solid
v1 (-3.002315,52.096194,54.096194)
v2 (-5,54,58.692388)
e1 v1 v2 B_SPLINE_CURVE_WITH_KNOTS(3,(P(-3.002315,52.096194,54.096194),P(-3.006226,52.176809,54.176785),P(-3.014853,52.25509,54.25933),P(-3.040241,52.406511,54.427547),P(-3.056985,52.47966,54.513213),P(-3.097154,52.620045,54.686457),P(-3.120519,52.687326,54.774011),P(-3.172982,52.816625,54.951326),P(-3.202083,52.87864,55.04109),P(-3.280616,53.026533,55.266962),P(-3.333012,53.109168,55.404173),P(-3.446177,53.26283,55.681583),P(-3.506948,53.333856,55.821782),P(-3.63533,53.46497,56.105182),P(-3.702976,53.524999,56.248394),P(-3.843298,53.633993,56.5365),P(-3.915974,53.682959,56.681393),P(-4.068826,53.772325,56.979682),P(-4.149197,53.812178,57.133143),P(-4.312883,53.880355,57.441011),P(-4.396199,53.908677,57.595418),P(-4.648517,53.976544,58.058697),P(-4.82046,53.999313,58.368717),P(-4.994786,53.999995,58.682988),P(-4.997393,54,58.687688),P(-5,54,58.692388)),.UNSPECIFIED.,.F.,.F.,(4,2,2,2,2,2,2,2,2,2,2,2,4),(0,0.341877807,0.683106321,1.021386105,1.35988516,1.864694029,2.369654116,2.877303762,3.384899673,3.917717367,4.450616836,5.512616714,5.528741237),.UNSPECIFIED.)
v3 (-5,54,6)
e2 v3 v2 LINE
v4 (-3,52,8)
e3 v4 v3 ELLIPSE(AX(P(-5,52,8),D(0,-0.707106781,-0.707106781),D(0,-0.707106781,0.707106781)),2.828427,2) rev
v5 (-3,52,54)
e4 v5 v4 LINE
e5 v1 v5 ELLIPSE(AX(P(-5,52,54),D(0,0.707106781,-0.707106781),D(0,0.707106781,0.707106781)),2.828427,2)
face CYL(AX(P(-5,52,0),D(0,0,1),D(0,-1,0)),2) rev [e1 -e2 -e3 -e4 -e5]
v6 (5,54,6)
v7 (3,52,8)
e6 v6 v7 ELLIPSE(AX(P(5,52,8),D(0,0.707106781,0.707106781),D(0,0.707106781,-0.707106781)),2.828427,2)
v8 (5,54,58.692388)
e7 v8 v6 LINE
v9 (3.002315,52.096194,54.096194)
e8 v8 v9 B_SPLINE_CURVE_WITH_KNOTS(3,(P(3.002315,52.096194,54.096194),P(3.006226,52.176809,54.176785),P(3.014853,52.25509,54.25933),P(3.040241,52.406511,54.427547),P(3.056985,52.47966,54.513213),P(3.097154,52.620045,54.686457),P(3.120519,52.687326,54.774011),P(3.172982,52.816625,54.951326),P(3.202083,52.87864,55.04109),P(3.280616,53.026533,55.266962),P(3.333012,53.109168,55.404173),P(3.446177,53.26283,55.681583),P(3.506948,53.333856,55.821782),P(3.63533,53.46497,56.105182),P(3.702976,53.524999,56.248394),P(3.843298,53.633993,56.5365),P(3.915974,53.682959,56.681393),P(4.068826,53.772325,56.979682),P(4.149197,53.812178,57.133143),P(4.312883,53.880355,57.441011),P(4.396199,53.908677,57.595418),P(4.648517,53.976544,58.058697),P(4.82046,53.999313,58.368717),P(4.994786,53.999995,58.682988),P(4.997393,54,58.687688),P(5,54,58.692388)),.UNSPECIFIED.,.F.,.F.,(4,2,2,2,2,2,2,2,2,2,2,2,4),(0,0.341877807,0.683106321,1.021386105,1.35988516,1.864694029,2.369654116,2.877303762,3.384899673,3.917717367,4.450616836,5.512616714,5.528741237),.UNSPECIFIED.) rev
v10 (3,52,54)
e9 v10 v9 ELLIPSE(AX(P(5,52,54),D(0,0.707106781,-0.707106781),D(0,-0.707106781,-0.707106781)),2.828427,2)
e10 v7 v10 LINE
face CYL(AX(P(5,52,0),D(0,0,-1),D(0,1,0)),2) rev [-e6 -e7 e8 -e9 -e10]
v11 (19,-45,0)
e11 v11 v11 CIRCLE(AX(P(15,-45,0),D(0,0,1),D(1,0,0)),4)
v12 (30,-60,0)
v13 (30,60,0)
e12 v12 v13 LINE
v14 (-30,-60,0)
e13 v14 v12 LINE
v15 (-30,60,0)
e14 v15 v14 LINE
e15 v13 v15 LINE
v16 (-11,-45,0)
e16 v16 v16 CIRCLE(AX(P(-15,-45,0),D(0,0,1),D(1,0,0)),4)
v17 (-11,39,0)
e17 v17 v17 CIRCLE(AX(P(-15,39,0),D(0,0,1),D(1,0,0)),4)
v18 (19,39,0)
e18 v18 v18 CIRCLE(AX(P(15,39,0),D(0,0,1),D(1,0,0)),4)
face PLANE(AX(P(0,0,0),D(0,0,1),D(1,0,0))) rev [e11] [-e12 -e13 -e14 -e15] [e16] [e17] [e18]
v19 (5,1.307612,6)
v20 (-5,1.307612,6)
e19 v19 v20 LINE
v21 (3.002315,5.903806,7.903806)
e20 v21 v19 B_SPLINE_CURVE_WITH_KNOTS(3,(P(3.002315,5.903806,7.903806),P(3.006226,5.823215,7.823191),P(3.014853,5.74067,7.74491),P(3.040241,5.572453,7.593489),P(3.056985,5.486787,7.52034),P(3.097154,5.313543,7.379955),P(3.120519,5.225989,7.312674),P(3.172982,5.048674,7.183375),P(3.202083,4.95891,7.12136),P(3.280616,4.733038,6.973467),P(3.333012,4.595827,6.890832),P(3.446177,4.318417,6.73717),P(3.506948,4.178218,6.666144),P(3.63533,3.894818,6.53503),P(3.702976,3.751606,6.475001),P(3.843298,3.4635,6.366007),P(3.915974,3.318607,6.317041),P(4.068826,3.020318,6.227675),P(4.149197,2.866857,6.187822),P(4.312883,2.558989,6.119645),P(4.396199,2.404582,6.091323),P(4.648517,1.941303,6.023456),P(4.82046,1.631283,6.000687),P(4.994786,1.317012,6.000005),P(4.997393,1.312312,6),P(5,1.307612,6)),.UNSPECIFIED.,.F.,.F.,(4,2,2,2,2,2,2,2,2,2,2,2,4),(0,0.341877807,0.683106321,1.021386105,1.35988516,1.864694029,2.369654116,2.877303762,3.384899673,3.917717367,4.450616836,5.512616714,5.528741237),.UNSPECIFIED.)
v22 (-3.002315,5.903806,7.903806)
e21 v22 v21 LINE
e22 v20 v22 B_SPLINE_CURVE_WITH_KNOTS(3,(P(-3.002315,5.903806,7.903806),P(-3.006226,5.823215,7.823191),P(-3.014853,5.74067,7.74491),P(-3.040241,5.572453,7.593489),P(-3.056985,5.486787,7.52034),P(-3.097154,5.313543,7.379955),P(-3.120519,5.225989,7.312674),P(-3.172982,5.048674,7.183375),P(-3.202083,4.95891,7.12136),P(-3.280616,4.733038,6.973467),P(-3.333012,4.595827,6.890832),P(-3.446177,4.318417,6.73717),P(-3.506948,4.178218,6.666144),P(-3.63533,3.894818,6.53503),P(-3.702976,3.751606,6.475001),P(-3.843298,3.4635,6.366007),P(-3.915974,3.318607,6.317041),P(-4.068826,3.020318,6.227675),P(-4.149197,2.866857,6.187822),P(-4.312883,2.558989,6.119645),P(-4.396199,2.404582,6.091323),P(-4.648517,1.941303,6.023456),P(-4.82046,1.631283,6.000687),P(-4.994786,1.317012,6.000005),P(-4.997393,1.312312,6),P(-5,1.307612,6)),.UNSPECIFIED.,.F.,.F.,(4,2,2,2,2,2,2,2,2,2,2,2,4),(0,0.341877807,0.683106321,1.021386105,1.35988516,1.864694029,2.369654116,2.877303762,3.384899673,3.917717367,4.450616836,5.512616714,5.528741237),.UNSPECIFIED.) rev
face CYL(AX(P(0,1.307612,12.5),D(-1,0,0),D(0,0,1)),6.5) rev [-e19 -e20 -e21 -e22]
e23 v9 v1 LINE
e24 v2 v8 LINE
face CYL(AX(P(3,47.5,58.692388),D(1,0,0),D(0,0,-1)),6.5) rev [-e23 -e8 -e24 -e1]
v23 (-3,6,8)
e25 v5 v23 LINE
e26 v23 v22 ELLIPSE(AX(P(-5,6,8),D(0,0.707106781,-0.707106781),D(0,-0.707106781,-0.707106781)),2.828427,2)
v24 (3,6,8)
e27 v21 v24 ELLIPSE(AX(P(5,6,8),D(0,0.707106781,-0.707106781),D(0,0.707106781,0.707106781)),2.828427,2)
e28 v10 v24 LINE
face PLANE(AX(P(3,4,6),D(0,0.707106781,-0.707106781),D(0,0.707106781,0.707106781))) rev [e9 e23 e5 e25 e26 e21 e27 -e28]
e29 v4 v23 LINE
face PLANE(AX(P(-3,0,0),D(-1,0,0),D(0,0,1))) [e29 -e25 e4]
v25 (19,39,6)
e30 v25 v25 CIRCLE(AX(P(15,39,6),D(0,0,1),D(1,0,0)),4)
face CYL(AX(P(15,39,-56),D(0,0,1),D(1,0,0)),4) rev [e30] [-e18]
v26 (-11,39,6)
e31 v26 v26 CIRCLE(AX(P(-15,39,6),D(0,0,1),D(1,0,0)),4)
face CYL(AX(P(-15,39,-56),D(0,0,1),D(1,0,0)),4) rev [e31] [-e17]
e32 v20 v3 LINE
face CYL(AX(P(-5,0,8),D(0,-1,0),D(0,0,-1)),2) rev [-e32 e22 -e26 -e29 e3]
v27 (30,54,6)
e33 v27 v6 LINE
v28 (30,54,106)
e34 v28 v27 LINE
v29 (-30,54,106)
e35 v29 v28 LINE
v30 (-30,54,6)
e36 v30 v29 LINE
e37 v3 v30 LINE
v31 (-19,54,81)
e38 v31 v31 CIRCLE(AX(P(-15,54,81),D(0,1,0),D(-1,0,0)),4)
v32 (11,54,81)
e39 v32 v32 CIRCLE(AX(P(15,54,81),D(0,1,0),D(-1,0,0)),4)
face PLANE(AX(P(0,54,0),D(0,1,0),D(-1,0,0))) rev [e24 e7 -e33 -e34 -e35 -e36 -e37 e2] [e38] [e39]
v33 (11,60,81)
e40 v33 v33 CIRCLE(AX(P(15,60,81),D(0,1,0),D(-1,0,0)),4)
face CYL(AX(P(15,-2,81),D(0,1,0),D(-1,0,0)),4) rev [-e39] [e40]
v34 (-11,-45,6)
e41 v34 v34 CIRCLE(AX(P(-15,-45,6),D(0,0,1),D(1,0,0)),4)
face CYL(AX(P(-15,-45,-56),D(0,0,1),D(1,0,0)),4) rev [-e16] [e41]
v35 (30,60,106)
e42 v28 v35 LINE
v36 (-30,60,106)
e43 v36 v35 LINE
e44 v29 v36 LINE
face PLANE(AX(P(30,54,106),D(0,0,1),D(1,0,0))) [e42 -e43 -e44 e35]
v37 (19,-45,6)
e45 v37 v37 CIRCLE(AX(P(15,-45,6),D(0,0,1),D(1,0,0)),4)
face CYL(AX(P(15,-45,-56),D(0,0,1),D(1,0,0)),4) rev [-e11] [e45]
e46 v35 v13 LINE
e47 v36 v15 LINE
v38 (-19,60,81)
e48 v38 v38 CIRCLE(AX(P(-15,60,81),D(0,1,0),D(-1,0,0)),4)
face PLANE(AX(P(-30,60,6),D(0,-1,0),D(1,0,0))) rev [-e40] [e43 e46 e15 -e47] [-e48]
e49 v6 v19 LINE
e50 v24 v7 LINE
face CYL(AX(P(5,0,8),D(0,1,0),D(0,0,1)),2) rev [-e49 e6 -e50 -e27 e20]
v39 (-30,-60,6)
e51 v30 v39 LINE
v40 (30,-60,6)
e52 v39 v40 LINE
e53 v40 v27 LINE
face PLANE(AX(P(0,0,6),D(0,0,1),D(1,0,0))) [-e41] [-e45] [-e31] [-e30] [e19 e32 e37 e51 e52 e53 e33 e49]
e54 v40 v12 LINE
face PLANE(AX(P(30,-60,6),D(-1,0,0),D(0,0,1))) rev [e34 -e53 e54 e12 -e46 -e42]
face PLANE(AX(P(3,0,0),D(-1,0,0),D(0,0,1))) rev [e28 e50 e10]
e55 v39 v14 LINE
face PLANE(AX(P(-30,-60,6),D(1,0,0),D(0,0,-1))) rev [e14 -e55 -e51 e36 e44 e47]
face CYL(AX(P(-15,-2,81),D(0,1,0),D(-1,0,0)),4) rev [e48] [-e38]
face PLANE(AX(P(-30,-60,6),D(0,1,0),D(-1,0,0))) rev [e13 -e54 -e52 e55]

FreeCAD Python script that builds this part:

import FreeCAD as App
import Part
import Sketcher

V = App.Vector
Q = App.Units.Quantity


def edges_at(feature, points):
    """Names of the edges that pass closest to the given points."""
    edges = feature.Shape.Edges
    near = lambda p: min(range(len(edges)), key=lambda i: edges[i].distToShape(Part.Vertex(*p))[0])
    return sorted({f"Edge{near(p) + 1}" for p in points})

doc = App.newDocument("Part")
params = doc.addObject("Spreadsheet::Sheet", "Params")
for row, (alias, value) in enumerate([
    ("sketch1_width", "60 mm"),
    ("sketch1_height", "120 mm"),
    ("pad1_length", "6 mm"),
    ("sketch2_width", "60 mm"),
    ("sketch2_height", "100 mm"),
    ("pad2_length", "6 mm"),
    ("sketch3_width", "50 mm"),
    ("pad3_length", "6 mm"),
    ("sketch4_diameter", "8 mm"),
    ("pocket1_length", "62 mm"),
    ("sketch5_diameter", "8 mm"),
    ("pocket2_length", "62 mm"),
    ("fillet_radius", "2 mm"),
    ("fillet2_radius", "6.5 mm"),
], start=1):
    params.set(f"A{row}", alias)
    params.set(f"B{row}", "=" + value)
    params.setAlias(f"B{row}", alias)

body = doc.addObject("PartDesign::Body", "Body")

# Sketch on XY plane
sketch1 = body.newObject("Sketcher::SketchObject", "Sketch")
sketch1.AttachmentSupport = (doc.getObject("XY_Plane"), [""])
sketch1.MapMode = "FlatFace"
sketch1.addGeometry(Part.LineSegment(V(-30, -60, 0), V(30, -60, 0)), False)
sketch1.addGeometry(Part.LineSegment(V(30, -60, 0), V(30, 60, 0)), False)
sketch1.addGeometry(Part.LineSegment(V(30, 60, 0), V(-30, 60, 0)), False)
sketch1.addGeometry(Part.LineSegment(V(-30, 60, 0), V(-30, -60, 0)), False)
sketch1.addConstraint(Sketcher.Constraint("Coincident", 0, 2, 1, 1))
sketch1.addConstraint(Sketcher.Constraint("Coincident", 1, 2, 2, 1))
sketch1.addConstraint(Sketcher.Constraint("Coincident", 2, 2, 3, 1))
sketch1.addConstraint(Sketcher.Constraint("Coincident", 3, 2, 0, 1))
sketch1.addConstraint(Sketcher.Constraint("Horizontal", 0))
sketch1.addConstraint(Sketcher.Constraint("Vertical", 1))
sketch1.addConstraint(Sketcher.Constraint("Horizontal", 2))
sketch1.addConstraint(Sketcher.Constraint("Vertical", 3))
sketch1.addConstraint(Sketcher.Constraint("Symmetric", 0, 2, 2, 2, -1, 1))
sketch1.addConstraint(Sketcher.Constraint("DistanceX", 0, 1, 0, 2, Q("60 mm")))
sketch1.addConstraint(Sketcher.Constraint("DistanceY", 1, 1, 1, 2, Q("120 mm")))
sketch1.setExpression("Constraints[9]", "Params.sketch1_width")
sketch1.setExpression("Constraints[10]", "Params.sketch1_height")
pad1 = body.newObject("PartDesign::Pad", "Pad")
pad1.Profile = sketch1
pad1.setExpression("Length", "Params.pad1_length")

# Sketch on XZ plane
sketch2 = body.newObject("Sketcher::SketchObject", "Sketch001")
sketch2.AttachmentSupport = (doc.getObject("XZ_Plane"), [""])
sketch2.MapMode = "FlatFace"
sketch2.AttachmentOffset = App.Placement(V(0, 0, -60), App.Rotation())
sketch2.addGeometry(Part.LineSegment(V(30, 106, 0), V(30, 6, 0)), False)
sketch2.addGeometry(Part.LineSegment(V(30, 6, 0), V(-30, 6, 0)), False)
sketch2.addGeometry(Part.LineSegment(V(-30, 6, 0), V(-30, 106, 0)), False)
sketch2.addGeometry(Part.LineSegment(V(-30, 106, 0), V(30, 106, 0)), False)
sketch2.addConstraint(Sketcher.Constraint("Coincident", 0, 2, 1, 1))
sketch2.addConstraint(Sketcher.Constraint("Coincident", 1, 2, 2, 1))
sketch2.addConstraint(Sketcher.Constraint("Coincident", 2, 2, 3, 1))
sketch2.addConstraint(Sketcher.Constraint("Coincident", 3, 2, 0, 1))
sketch2.addConstraint(Sketcher.Constraint("Vertical", 0))
sketch2.addConstraint(Sketcher.Constraint("Horizontal", 1))
sketch2.addConstraint(Sketcher.Constraint("Vertical", 2))
sketch2.addConstraint(Sketcher.Constraint("Horizontal", 3))
sketch2.addConstraint(Sketcher.Constraint("DistanceX", 1, 2, 1, 1, Q("60 mm")))
sketch2.addConstraint(Sketcher.Constraint("DistanceY", 0, 2, 0, 1, Q("100 mm")))
sketch2.addConstraint(Sketcher.Constraint("DistanceX", -1, 1, 0, 2, Q("30 mm")))
sketch2.addConstraint(Sketcher.Constraint("DistanceY", -1, 1, 0, 2, Q("6 mm")))
sketch2.setExpression("Constraints[8]", "Params.sketch2_width")
sketch2.setExpression("Constraints[9]", "Params.sketch2_height")
pad2 = body.newObject("PartDesign::Pad", "Pad001")
pad2.Profile = sketch2
pad2.setExpression("Length", "Params.pad2_length")

# Sketch on YZ plane
sketch3 = body.newObject("Sketcher::SketchObject", "Sketch002")
sketch3.AttachmentSupport = (doc.getObject("YZ_Plane"), [""])
sketch3.MapMode = "FlatFace"
sketch3.addGeometry(Part.LineSegment(V(4, 6, 0), V(54, 6, 0)), False)
sketch3.addGeometry(Part.LineSegment(V(54, 6, 0), V(54, 56, 0)), False)
sketch3.addGeometry(Part.LineSegment(V(54, 56, 0), V(4, 6, 0)), False)
sketch3.addConstraint(Sketcher.Constraint("Coincident", 0, 2, 1, 1))
sketch3.addConstraint(Sketcher.Constraint("Coincident", 1, 2, 2, 1))
sketch3.addConstraint(Sketcher.Constraint("Coincident", 2, 2, 0, 1))
sketch3.addConstraint(Sketcher.Constraint("Horizontal", 0))
sketch3.addConstraint(Sketcher.Constraint("Vertical", 1))
sketch3.addConstraint(Sketcher.Constraint("Equal", 0, 1))
sketch3.addConstraint(Sketcher.Constraint("DistanceX", 0, 1, 0, 2, Q("50 mm")))
sketch3.addConstraint(Sketcher.Constraint("DistanceX", -1, 1, 0, 2, Q("54 mm")))
sketch3.addConstraint(Sketcher.Constraint("DistanceY", -1, 1, 0, 2, Q("6 mm")))
sketch3.setExpression("Constraints[6]", "Params.sketch3_width")
pad3 = body.newObject("PartDesign::Pad", "Pad002")
pad3.Profile = sketch3
pad3.setExpression("Length", "Params.pad3_length")
pad3.Midplane = True

# Sketch on XZ plane
sketch4 = body.newObject("Sketcher::SketchObject", "Sketch003")
sketch4.AttachmentSupport = (doc.getObject("XZ_Plane"), [""])
sketch4.MapMode = "FlatFace"
sketch4.AttachmentOffset = App.Placement(V(0, 0, -60), App.Rotation())
sketch4.addGeometry(Part.Circle(V(15, 81, 0), V(0, 0, 1), 4), False)
sketch4.addGeometry(Part.Circle(V(-15, 81, 0), V(0, 0, 1), 4), False)
sketch4.addConstraint(Sketcher.Constraint("Equal", 0, 1))
sketch4.addConstraint(Sketcher.Constraint("Symmetric", 0, 3, 1, 3, -2))
sketch4.addConstraint(Sketcher.Constraint("Diameter", 0, Q("8 mm")))
sketch4.addConstraint(Sketcher.Constraint("DistanceX", -1, 1, 0, 3, Q("15 mm")))
sketch4.addConstraint(Sketcher.Constraint("DistanceY", -1, 1, 0, 3, Q("81 mm")))
sketch4.setExpression("Constraints[2]", "Params.sketch4_diameter")
pocket1 = body.newObject("PartDesign::Pocket", "Pocket")
pocket1.Profile = sketch4
pocket1.setExpression("Length", "Params.pocket1_length")
pocket1.Reversed = True

# Sketch on XY plane
sketch5 = body.newObject("Sketcher::SketchObject", "Sketch004")
sketch5.AttachmentSupport = (doc.getObject("XY_Plane"), [""])
sketch5.MapMode = "FlatFace"
sketch5.AttachmentOffset = App.Placement(V(0, 0, 6), App.Rotation())
sketch5.addGeometry(Part.Circle(V(-15, -45, 0), V(0, 0, 1), 4), False)
sketch5.addGeometry(Part.Circle(V(15, -45, 0), V(0, 0, 1), 4), False)
sketch5.addGeometry(Part.Circle(V(-15, 39, 0), V(0, 0, 1), 4), False)
sketch5.addGeometry(Part.Circle(V(15, 39, 0), V(0, 0, 1), 4), False)
sketch5.addConstraint(Sketcher.Constraint("Equal", 0, 1))
sketch5.addConstraint(Sketcher.Constraint("Equal", 1, 2))
sketch5.addConstraint(Sketcher.Constraint("Equal", 2, 3))
sketch5.addConstraint(Sketcher.Constraint("Symmetric", 0, 3, 1, 3, -2))
sketch5.addConstraint(Sketcher.Constraint("Symmetric", 2, 3, 3, 3, -2))
sketch5.addConstraint(Sketcher.Constraint("Vertical", 0, 3, 2, 3))
sketch5.addConstraint(Sketcher.Constraint("Diameter", 0, Q("8 mm")))
sketch5.addConstraint(Sketcher.Constraint("DistanceX", 0, 3, -1, 1, Q("15 mm")))
sketch5.addConstraint(Sketcher.Constraint("DistanceY", 0, 3, -1, 1, Q("45 mm")))
sketch5.addConstraint(Sketcher.Constraint("DistanceY", -1, 1, 2, 3, Q("39 mm")))
sketch5.setExpression("Constraints[6]", "Params.sketch5_diameter")
pocket2 = body.newObject("PartDesign::Pocket", "Pocket001")
pocket2.Profile = sketch5
pocket2.setExpression("Length", "Params.pocket2_length")
doc.recompute()

fillet = body.newObject("PartDesign::Fillet", "Fillet")
fillet.Base = (pocket2, edges_at(pocket2, [
    (-3, 54, 31),
    (-3, 29, 6),
    (3, 54, 31),
    (3, 29, 6),
]))
fillet.setExpression("Radius", "Params.fillet_radius")
doc.recompute()

fillet2 = body.newObject("PartDesign::Fillet", "Fillet001")
fillet2.Base = (fillet, edges_at(fillet, [(0, 4, 6), (0, 54, 56)]))
fillet2.setExpression("Radius", "Params.fillet2_radius")

doc.recompute()
